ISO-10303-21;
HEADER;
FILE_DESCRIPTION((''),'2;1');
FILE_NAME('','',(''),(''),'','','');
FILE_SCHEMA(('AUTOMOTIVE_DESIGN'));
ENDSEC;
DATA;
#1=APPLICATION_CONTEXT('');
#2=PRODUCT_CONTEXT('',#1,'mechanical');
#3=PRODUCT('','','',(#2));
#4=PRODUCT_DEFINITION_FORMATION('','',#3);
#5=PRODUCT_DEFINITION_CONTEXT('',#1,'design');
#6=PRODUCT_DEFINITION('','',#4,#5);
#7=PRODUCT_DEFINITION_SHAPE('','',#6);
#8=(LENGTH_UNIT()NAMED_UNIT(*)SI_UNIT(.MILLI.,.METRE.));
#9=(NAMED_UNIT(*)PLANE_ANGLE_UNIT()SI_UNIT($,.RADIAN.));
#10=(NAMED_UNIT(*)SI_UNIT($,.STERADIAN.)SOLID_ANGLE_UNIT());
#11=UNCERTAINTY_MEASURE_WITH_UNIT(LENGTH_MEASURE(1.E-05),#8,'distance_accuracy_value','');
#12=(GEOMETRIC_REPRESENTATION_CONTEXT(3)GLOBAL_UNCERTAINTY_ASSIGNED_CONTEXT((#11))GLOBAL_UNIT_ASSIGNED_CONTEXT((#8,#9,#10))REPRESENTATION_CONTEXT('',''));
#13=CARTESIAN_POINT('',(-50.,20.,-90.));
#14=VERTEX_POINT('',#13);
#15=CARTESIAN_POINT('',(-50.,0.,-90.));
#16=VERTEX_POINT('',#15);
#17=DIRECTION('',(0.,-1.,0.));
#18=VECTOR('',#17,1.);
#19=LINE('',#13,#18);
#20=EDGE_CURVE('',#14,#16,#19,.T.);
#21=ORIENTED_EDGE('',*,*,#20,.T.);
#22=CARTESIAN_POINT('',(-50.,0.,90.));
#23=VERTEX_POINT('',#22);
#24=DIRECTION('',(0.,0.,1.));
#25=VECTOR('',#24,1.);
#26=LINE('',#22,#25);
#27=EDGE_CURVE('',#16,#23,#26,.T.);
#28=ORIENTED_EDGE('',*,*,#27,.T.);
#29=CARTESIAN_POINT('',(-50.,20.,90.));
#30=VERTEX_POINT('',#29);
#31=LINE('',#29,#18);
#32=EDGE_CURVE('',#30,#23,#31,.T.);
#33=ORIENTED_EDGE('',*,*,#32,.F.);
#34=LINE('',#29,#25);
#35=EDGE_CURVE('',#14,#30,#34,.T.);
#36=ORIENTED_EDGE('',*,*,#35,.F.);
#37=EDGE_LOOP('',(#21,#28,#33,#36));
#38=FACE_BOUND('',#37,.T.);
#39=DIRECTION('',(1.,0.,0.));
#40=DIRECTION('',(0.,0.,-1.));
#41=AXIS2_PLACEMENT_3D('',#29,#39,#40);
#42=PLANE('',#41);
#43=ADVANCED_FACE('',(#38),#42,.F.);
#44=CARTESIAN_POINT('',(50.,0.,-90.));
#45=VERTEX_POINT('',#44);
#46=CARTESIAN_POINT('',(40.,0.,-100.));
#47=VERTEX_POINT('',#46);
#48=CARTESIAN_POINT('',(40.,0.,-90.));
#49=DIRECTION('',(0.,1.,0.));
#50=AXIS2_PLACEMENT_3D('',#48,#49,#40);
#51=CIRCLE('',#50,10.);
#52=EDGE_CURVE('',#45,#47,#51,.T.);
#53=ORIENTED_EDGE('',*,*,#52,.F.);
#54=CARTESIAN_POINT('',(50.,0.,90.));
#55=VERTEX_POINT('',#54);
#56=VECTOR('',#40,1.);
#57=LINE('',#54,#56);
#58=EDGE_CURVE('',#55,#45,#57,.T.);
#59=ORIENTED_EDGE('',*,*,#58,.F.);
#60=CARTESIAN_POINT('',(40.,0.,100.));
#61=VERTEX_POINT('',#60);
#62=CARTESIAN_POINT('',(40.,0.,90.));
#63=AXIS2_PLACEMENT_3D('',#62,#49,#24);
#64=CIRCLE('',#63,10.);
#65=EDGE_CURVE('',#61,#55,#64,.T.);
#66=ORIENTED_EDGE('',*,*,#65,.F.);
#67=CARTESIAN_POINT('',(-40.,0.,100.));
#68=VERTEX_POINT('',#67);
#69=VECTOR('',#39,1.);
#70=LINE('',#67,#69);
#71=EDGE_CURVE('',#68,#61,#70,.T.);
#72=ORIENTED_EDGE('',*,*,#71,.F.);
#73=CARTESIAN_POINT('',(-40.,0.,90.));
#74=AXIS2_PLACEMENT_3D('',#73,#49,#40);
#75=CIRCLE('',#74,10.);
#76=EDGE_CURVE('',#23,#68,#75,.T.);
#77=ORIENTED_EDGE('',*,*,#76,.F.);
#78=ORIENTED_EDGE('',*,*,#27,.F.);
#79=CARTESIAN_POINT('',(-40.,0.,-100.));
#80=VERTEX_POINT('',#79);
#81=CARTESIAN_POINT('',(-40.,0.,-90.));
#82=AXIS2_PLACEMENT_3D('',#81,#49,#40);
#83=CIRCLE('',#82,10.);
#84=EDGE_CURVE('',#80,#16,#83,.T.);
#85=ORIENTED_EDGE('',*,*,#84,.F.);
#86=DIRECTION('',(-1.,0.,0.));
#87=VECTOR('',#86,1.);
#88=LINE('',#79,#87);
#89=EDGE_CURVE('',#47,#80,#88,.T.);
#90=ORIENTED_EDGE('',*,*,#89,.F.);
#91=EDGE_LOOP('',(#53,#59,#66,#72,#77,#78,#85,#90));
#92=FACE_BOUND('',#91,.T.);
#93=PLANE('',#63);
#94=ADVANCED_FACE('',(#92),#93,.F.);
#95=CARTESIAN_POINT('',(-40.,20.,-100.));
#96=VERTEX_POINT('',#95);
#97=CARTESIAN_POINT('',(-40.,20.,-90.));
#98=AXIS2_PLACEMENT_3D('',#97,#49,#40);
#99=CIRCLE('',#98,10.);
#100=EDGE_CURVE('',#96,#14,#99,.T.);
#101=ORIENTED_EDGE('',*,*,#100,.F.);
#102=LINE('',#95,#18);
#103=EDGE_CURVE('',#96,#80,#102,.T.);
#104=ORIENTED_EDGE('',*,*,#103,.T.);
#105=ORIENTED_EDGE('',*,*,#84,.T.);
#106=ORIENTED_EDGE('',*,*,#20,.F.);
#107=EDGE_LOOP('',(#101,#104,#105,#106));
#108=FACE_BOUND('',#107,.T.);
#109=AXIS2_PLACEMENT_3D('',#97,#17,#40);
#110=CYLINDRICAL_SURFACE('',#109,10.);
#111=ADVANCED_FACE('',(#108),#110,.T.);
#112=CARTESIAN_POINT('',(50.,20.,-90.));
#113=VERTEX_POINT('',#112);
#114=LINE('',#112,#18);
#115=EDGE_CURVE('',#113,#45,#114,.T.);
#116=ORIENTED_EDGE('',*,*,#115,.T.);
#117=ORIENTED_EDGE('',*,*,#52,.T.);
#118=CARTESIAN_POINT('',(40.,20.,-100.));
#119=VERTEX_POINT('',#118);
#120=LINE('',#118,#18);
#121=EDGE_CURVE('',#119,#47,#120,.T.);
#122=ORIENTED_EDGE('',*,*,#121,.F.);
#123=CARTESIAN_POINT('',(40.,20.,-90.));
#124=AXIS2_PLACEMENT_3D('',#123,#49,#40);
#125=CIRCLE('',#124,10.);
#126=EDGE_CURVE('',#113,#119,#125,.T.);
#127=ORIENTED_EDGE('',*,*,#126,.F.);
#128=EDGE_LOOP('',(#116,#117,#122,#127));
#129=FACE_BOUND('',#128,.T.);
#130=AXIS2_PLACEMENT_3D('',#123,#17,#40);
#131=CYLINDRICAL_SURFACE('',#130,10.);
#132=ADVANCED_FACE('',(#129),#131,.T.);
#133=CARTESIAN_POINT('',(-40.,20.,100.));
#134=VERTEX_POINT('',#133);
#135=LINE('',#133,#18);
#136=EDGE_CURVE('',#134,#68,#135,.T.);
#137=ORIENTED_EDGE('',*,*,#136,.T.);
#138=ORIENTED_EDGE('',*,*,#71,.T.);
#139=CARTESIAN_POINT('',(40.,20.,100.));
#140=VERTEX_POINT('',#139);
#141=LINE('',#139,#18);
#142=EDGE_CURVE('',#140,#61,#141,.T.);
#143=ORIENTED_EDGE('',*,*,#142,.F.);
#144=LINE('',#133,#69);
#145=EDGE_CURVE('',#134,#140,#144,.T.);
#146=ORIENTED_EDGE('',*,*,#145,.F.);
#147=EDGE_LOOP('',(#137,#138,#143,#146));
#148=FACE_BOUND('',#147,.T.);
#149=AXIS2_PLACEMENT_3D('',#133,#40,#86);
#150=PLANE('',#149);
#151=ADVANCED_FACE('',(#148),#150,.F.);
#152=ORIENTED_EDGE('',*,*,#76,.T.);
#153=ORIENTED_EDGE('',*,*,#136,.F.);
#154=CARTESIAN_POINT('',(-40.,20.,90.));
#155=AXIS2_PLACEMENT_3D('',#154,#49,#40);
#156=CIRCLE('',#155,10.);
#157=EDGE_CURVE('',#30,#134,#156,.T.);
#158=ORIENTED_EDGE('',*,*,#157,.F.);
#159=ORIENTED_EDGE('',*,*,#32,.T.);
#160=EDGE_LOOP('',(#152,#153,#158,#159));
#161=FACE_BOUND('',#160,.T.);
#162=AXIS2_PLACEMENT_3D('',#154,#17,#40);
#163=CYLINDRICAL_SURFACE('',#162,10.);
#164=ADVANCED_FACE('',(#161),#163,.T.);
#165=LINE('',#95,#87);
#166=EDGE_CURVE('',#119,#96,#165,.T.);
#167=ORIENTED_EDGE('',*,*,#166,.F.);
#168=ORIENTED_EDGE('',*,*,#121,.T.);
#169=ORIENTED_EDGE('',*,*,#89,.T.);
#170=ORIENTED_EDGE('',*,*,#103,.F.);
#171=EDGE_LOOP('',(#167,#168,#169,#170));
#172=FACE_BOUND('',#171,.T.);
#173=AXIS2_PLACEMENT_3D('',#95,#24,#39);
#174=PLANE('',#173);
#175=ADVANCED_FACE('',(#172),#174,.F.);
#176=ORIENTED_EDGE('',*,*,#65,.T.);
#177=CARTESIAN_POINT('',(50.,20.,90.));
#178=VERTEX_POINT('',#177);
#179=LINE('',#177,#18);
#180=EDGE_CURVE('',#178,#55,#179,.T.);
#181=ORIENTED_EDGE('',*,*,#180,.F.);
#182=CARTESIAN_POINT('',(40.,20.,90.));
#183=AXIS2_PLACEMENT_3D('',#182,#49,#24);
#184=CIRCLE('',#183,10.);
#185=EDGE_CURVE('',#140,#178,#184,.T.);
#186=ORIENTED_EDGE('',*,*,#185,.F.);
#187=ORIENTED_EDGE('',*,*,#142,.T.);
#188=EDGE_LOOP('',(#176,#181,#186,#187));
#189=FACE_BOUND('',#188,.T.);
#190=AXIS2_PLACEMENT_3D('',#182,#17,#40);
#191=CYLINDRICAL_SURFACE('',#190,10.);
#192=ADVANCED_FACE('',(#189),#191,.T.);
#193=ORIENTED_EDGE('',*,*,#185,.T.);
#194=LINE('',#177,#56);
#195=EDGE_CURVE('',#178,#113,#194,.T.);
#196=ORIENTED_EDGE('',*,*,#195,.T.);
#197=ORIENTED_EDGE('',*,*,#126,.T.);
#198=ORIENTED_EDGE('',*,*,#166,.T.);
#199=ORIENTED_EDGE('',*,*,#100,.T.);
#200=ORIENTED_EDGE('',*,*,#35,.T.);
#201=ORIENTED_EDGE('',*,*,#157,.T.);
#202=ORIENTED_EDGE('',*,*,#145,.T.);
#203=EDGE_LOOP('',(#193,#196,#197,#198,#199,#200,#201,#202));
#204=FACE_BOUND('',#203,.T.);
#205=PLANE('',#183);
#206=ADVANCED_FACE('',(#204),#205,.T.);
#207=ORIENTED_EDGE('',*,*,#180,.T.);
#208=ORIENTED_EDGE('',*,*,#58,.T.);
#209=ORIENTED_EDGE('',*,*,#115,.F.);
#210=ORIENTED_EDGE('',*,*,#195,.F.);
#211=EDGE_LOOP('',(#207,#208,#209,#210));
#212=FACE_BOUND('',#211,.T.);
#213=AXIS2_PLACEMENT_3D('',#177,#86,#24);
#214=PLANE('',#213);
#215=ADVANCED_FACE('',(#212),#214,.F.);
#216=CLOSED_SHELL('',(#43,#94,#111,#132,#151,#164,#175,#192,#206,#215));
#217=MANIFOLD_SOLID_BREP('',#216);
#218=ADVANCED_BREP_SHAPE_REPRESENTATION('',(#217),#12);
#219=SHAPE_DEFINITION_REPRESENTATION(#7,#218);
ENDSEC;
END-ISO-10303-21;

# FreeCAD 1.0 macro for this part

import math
import FreeCAD as App
import Part
import Sketcher

V = App.Vector

doc = App.newDocument("Part")
params = doc.addObject("Spreadsheet::Sheet", "Params")
for row, (alias, value) in enumerate([
    ("sketch1_radius", "10 mm"),
    ("sketch1_width", "80 mm"),
    ("sketch1_height", "180 mm"),
    ("pad1_length", "20 mm"),
], start=1):
    params.set(f"A{row}", alias)
    params.set(f"B{row}", "=" + value)
    params.setAlias(f"B{row}", alias)

body = doc.addObject("PartDesign::Body", "Body")

sketch1 = body.newObject("Sketcher::SketchObject", "Sketch")
sketch1.AttachmentSupport = (doc.getObject("XZ_Plane"), [""])
sketch1.MapMode = "FlatFace"
sketch1.addGeometry([
    Part.LineSegment(V(-40, 100, 0), V(40, 100, 0)),
    Part.ArcOfCircle(Part.Circle(V(40, 90, 0), V(0, 0, 1), 10), math.radians(0), math.radians(90)),
    Part.LineSegment(V(50, 90, 0), V(50, -90, 0)),
    Part.ArcOfCircle(Part.Circle(V(40, -90, 0), V(0, 0, 1), 10), math.radians(-90), math.radians(0)),
    Part.LineSegment(V(40, -100, 0), V(-40, -100, 0)),
    Part.ArcOfCircle(Part.Circle(V(-40, -90, 0), V(0, 0, 1), 10), math.radians(180), math.radians(270)),
    Part.LineSegment(V(-50, -90, 0), V(-50, 90, 0)),
    Part.ArcOfCircle(Part.Circle(V(-40, 90, 0), V(0, 0, 1), 10), math.radians(90), math.radians(180)),
], False)
sketch1.addConstraint([
    Sketcher.Constraint("Tangent", 0, 2, 1, 2),
    Sketcher.Constraint("Tangent", 1, 1, 2, 1),
    Sketcher.Constraint("Tangent", 2, 2, 3, 2),
    Sketcher.Constraint("Tangent", 3, 1, 4, 1),
    Sketcher.Constraint("Tangent", 4, 2, 5, 2),
    Sketcher.Constraint("Tangent", 5, 1, 6, 1),
    Sketcher.Constraint("Tangent", 6, 2, 7, 2),
    Sketcher.Constraint("Tangent", 7, 1, 0, 1),
    Sketcher.Constraint("Horizontal", 0),
    Sketcher.Constraint("Vertical", 2),
    Sketcher.Constraint("Horizontal", 4),
    Sketcher.Constraint("Vertical", 6),
    Sketcher.Constraint("Equal", 1, 3),
    Sketcher.Constraint("Equal", 3, 5),
    Sketcher.Constraint("Equal", 5, 7),
    Sketcher.Constraint("Symmetric", 1, 3, 5, 3, -1, 1),
    Sketcher.Constraint("Radius", 1, 10.0),
    Sketcher.Constraint("DistanceX", 0, 1, 0, 2, 80.0),
    Sketcher.Constraint("DistanceY", 2, 2, 2, 1, 180.0),
])
sketch1.setExpression("Constraints[16]", "Params.sketch1_radius")
sketch1.setExpression("Constraints[17]", "Params.sketch1_width")
sketch1.setExpression("Constraints[18]", "Params.sketch1_height")
pad1 = body.newObject("PartDesign::Pad", "Pad")
pad1.Profile = sketch1
pad1.setExpression("Length", "Params.pad1_length")
pad1.Reversed = True

doc.recompute()
